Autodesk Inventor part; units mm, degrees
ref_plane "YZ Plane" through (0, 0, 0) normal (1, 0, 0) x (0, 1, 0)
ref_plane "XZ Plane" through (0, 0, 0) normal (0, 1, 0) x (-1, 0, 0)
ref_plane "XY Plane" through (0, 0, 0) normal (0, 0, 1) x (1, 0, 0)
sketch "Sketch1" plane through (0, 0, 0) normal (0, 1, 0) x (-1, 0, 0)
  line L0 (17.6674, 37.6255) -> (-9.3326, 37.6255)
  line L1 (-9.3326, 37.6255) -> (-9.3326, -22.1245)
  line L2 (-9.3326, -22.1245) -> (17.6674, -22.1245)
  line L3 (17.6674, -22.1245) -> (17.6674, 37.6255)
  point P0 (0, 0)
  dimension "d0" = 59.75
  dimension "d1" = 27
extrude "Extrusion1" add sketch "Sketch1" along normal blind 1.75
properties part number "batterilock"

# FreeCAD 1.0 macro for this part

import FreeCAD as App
import Part
import Sketcher
from FreeCAD import Vector
Q = App.Units.Quantity

doc = App.newDocument("Part")
body = doc.addObject("PartDesign::Body", "Body")

# Sketch on XZ plane
sketch1 = body.newObject("Sketcher::SketchObject", "Sketch")
sketch1.AttachmentSupport = (doc.getObject("XZ_Plane"), [""])
sketch1.MapMode = "FlatFace"
sketch1.addGeometry(Part.LineSegment(Vector(-18, -22, 0), Vector(-18, 38, 0)), False)
sketch1.addGeometry(Part.LineSegment(Vector(-18, 38, 0), Vector(9, 38, 0)), False)
sketch1.addGeometry(Part.LineSegment(Vector(9, 38, 0), Vector(9, -22, 0)), False)
sketch1.addGeometry(Part.LineSegment(Vector(9, -22, 0), Vector(-18, -22, 0)), False)
sketch1.addConstraint(Sketcher.Constraint("Coincident", 0, 2, 1, 1))
sketch1.addConstraint(Sketcher.Constraint("Coincident", 1, 2, 2, 1))
sketch1.addConstraint(Sketcher.Constraint("Coincident", 2, 2, 3, 1))
sketch1.addConstraint(Sketcher.Constraint("Coincident", 3, 2, 0, 1))
sketch1.addConstraint(Sketcher.Constraint("Vertical", 0))
sketch1.addConstraint(Sketcher.Constraint("Horizontal", 1))
sketch1.addConstraint(Sketcher.Constraint("Vertical", 2))
sketch1.addConstraint(Sketcher.Constraint("Horizontal", 3))
sketch1.addConstraint(Sketcher.Constraint("DistanceX", 1, 1, 1, 2, Q("1.063 in")))
sketch1.addConstraint(Sketcher.Constraint("DistanceY", 0, 1, 0, 2, 59.75))
sketch1.addConstraint(Sketcher.Constraint("DistanceX", 0, 2, -1, 1, 17.6674))
sketch1.addConstraint(Sketcher.Constraint("DistanceY", -1, 1, 0, 2, 37.6255))
pad1 = body.newObject("PartDesign::Pad", "Pad")
pad1.Profile = sketch1
pad1.Length = Q("0.0688976 in")
pad1.Reversed = True

doc.recompute()
